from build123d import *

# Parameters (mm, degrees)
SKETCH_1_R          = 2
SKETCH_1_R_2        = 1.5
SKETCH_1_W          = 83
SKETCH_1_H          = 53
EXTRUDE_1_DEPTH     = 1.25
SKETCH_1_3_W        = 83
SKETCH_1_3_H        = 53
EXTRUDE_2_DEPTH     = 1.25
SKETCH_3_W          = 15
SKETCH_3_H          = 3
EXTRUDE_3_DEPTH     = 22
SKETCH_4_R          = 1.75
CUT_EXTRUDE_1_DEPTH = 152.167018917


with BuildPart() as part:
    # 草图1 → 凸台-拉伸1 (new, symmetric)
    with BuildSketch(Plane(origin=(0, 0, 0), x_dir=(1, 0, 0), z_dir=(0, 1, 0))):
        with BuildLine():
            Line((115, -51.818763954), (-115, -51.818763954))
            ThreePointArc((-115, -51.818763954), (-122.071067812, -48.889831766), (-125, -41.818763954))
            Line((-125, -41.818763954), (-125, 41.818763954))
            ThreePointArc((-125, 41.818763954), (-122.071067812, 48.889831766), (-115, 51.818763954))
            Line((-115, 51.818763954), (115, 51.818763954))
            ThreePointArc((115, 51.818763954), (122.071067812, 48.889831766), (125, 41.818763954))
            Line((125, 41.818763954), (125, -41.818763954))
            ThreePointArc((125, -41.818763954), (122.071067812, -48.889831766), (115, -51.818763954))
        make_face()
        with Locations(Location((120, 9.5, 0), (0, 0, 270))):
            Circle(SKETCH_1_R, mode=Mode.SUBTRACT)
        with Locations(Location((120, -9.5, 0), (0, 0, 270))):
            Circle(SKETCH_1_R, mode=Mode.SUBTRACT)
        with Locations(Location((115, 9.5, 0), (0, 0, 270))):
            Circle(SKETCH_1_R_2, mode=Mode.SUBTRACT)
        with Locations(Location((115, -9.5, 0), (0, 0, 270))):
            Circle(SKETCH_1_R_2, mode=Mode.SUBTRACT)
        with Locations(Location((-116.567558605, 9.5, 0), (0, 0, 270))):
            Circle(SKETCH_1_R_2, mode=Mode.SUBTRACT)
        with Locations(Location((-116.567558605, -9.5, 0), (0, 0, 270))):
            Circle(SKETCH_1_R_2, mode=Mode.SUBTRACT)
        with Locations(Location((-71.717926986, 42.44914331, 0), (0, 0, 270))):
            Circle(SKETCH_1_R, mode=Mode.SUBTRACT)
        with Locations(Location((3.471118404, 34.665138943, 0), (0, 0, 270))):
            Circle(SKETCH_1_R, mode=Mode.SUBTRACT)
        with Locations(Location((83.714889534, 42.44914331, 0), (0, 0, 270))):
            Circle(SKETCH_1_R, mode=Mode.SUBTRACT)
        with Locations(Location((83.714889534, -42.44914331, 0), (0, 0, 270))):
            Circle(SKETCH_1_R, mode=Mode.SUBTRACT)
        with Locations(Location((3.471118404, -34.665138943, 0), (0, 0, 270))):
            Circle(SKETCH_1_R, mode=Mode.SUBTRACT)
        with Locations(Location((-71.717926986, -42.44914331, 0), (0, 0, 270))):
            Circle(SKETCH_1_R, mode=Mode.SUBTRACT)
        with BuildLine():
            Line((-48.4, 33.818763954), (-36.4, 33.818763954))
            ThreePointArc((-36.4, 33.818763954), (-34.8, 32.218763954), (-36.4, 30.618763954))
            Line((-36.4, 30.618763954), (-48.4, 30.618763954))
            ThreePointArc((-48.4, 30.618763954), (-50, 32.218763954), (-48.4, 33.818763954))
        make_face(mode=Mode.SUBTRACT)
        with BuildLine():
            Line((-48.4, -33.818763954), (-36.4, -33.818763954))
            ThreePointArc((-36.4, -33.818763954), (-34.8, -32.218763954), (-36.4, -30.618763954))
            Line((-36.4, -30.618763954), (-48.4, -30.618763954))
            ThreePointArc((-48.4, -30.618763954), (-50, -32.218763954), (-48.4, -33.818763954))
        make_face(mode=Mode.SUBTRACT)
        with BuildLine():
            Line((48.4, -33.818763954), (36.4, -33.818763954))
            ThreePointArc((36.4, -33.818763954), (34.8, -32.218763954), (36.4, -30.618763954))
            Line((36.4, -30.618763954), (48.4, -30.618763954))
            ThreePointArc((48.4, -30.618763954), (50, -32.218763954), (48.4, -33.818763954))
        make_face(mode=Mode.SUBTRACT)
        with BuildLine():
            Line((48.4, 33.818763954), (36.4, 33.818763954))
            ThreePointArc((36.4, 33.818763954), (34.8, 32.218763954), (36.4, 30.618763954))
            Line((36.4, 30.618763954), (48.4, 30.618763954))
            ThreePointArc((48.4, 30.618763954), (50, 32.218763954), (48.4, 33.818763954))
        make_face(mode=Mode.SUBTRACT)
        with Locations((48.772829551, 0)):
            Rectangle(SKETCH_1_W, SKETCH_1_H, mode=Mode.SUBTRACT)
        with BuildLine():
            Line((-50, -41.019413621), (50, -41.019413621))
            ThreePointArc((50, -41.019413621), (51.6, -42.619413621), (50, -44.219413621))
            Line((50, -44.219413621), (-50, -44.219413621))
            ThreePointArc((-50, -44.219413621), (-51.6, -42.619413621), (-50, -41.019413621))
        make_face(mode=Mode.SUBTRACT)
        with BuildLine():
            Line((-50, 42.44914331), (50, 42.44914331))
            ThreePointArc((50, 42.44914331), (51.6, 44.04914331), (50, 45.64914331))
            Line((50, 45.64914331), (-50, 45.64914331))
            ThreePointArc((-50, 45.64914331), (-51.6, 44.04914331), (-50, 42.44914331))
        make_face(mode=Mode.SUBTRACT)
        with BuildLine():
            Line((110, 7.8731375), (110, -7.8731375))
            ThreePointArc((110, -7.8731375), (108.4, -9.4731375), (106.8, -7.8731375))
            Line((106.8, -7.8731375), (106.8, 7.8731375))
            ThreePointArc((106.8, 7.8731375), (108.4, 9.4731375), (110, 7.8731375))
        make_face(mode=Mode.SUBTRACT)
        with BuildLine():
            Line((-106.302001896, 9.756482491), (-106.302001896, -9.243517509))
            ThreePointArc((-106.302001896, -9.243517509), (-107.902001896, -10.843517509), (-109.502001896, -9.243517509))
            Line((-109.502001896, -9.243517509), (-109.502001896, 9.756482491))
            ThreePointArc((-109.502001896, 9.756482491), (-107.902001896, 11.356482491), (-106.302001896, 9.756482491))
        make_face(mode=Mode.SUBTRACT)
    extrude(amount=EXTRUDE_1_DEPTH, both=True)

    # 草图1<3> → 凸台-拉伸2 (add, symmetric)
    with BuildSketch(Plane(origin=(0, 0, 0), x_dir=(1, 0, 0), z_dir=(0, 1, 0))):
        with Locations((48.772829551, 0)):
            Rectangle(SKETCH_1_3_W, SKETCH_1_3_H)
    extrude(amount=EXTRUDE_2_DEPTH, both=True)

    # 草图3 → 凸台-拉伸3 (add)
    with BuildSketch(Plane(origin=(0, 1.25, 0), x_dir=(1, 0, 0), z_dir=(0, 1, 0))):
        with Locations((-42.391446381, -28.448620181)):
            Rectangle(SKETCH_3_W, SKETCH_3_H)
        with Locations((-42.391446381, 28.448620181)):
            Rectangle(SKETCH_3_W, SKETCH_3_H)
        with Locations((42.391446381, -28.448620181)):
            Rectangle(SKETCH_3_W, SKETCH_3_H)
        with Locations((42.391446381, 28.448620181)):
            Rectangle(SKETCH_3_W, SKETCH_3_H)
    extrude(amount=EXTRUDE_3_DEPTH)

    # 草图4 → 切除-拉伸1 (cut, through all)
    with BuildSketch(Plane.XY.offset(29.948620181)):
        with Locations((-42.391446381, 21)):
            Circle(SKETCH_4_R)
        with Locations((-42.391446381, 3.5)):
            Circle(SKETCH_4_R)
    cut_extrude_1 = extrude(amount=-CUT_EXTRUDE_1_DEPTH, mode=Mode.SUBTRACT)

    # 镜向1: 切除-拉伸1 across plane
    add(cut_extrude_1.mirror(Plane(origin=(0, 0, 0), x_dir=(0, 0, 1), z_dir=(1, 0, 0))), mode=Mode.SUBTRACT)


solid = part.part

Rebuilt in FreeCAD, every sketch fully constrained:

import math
import FreeCAD as App
import Part
import Sketcher

V = App.Vector


def add_polygon(sketch, points):
    """Adds a closed chain of lines whose ends are joined by coincident constraints."""
    first, n = sketch.GeometryCount, len(points)
    for a, b in zip(points, points[1:] + points[:1]):
        sketch.addGeometry(Part.LineSegment(App.Vector(*a, 0), App.Vector(*b, 0)), False)
    for i in range(n):
        sketch.addConstraint(Sketcher.Constraint("Coincident", first + i, 2, first + (i + 1) % n, 1))

doc = App.newDocument("Part")
params = doc.addObject("Spreadsheet::Sheet", "Params")
for row, (alias, value) in enumerate([
    ("sketch1_diameter", "4 mm"),
    ("sketch1_diameter2", "3 mm"),
    ("sketch1_radius", "10 mm"),
    ("sketch1_radius2", "1.6 mm"),
    ("sketch1_width", "230 mm"),
    ("pad1_length", "2.5 mm"),
    ("sketch2_width", "83 mm"),
    ("sketch2_height", "53 mm"),
    ("pad2_length", "2.5 mm"),
    ("sketch3_width", "15 mm"),
    ("sketch3_height", "3 mm"),
    ("pad3_length", "22 mm"),
    ("sketch4_diameter", "3.5 mm"),
], start=1):
    params.set(f"A{row}", alias)
    params.set(f"B{row}", "=" + value)
    params.setAlias(f"B{row}", alias)

body = doc.addObject("PartDesign::Body", "Body")

# Sketch on XZ plane
sketch1 = body.newObject("Sketcher::SketchObject", "Sketch")
sketch1.AttachmentSupport = (doc.getObject("XZ_Plane"), [""])
sketch1.MapMode = "FlatFace"
sketch1.addGeometry(Part.LineSegment(V(-115, 51.818764, 0), V(115, 51.818764, 0)), False)  # 0
sketch1.addGeometry(Part.ArcOfCircle(Part.Circle(V(115, 41.818764, 0), V(0, 0, 1), 10), math.radians(0), math.radians(90)), False)  # 1
sketch1.addGeometry(Part.LineSegment(V(125, 41.818764, 0), V(125, -41.818764, 0)), False)  # 2
sketch1.addGeometry(Part.ArcOfCircle(Part.Circle(V(115, -41.818764, 0), V(0, 0, 1), 10), math.radians(-90), math.radians(0)), False)  # 3
sketch1.addGeometry(Part.LineSegment(V(115, -51.818764, 0), V(-115, -51.818764, 0)), False)  # 4
sketch1.addGeometry(Part.ArcOfCircle(Part.Circle(V(-115, -41.818764, 0), V(0, 0, 1), 10), math.radians(180), math.radians(270)), False)  # 5
sketch1.addGeometry(Part.LineSegment(V(-125, -41.818764, 0), V(-125, 41.818764, 0)), False)  # 6
sketch1.addGeometry(Part.ArcOfCircle(Part.Circle(V(-115, 41.818764, 0), V(0, 0, 1), 10), math.radians(90), math.radians(180)), False)  # 7
sketch1.addGeometry(Part.Circle(V(83.71489, 42.449143, 0), V(0, 0, 1), 2), False)  # 8
sketch1.addGeometry(Part.Circle(V(3.471118, 34.665139, 0), V(0, 0, 1), 2), False)  # 9
sketch1.addGeometry(Part.LineSegment(V(48.4, 33.818764, 0), V(36.4, 33.818764, 0)), False)  # 10
sketch1.addGeometry(Part.ArcOfCircle(Part.Circle(V(36.4, 32.218764, 0), V(0, 0, 1), 1.6), math.radians(90), math.radians(270)), False)  # 11
sketch1.addGeometry(Part.LineSegment(V(36.4, 30.618764, 0), V(48.4, 30.618764, 0)), False)  # 12
sketch1.addGeometry(Part.ArcOfCircle(Part.Circle(V(48.4, 32.218764, 0), V(0, 0, 1), 1.6), math.radians(-90), math.radians(90)), False)  # 13
sketch1.addGeometry(Part.Circle(V(120, 9.5, 0), V(0, 0, 1), 2), False)  # 14
sketch1.addGeometry(Part.Circle(V(115, 9.5, 0), V(0, 0, 1), 1.5), False)  # 15
sketch1.addGeometry(Part.LineSegment(V(110, -7.873138, 0), V(110, 7.873138, 0)), False)  # 16
sketch1.addGeometry(Part.ArcOfCircle(Part.Circle(V(108.4, 7.873138, 0), V(0, 0, 1), 1.6), math.radians(0), math.radians(180)), False)  # 17
sketch1.addGeometry(Part.LineSegment(V(106.8, 7.873138, 0), V(106.8, -7.873138, 0)), False)  # 18
sketch1.addGeometry(Part.ArcOfCircle(Part.Circle(V(108.4, -7.873138, 0), V(0, 0, 1), 1.6), math.radians(180), math.radians(360)), False)  # 19
add_polygon(sketch1, [(7.27283, 26.5), (7.27283, -26.5), (90.27283, -26.5), (90.27283, 26.5)])  # lines 20-23
sketch1.addGeometry(Part.LineSegment(V(-50, 41.019414, 0), V(50, 41.019414, 0)), False)  # 24
sketch1.addGeometry(Part.ArcOfCircle(Part.Circle(V(50, 42.619414, 0), V(0, 0, 1), 1.6), math.radians(-90), math.radians(90)), False)  # 25
sketch1.addGeometry(Part.LineSegment(V(50, 44.219414, 0), V(-50, 44.219414, 0)), False)  # 26
sketch1.addGeometry(Part.ArcOfCircle(Part.Circle(V(-50, 42.619414, 0), V(0, 0, 1), 1.6), math.radians(90), math.radians(270)), False)  # 27
sketch1.addGeometry(Part.ArcOfCircle(Part.Circle(V(-48.4, 32.218764, 0), V(0, 0, 1), 1.6), math.radians(90), math.radians(270)), False)  # 28
sketch1.addGeometry(Part.LineSegment(V(-48.4, 30.618764, 0), V(-36.4, 30.618764, 0)), False)  # 29
sketch1.addGeometry(Part.ArcOfCircle(Part.Circle(V(-36.4, 32.218764, 0), V(0, 0, 1), 1.6), math.radians(-90), math.radians(90)), False)  # 30
sketch1.addGeometry(Part.LineSegment(V(-36.4, 33.818764, 0), V(-48.4, 33.818764, 0)), False)  # 31
sketch1.addGeometry(Part.Circle(V(-71.717927, 42.449143, 0), V(0, 0, 1), 2), False)  # 32
sketch1.addGeometry(Part.Circle(V(-116.567559, 9.5, 0), V(0, 0, 1), 1.5), False)  # 33
sketch1.addGeometry(Part.LineSegment(V(-106.302002, -9.756482, 0), V(-106.302002, 9.243518, 0)), False)  # 34
sketch1.addGeometry(Part.ArcOfCircle(Part.Circle(V(-107.902002, 9.243518, 0), V(0, 0, 1), 1.6), math.radians(0), math.radians(180)), False)  # 35
sketch1.addGeometry(Part.LineSegment(V(-109.502002, 9.243518, 0), V(-109.502002, -9.756482, 0)), False)  # 36
sketch1.addGeometry(Part.ArcOfCircle(Part.Circle(V(-107.902002, -9.756482, 0), V(0, 0, 1), 1.6), math.radians(180), math.radians(360)), False)  # 37
sketch1.addGeometry(Part.Circle(V(120, -9.5, 0), V(0, 0, 1), 2), False)  # 38
sketch1.addGeometry(Part.Circle(V(115, -9.5, 0), V(0, 0, 1), 1.5), False)  # 39
sketch1.addGeometry(Part.Circle(V(83.71489, -42.449143, 0), V(0, 0, 1), 2), False)  # 40
sketch1.addGeometry(Part.ArcOfCircle(Part.Circle(V(48.4, -32.218764, 0), V(0, 0, 1), 1.6), math.radians(-90), math.radians(90)), False)  # 41
sketch1.addGeometry(Part.LineSegment(V(48.4, -30.618764, 0), V(36.4, -30.618764, 0)), False)  # 42
sketch1.addGeometry(Part.ArcOfCircle(Part.Circle(V(36.4, -32.218764, 0), V(0, 0, 1), 1.6), math.radians(90), math.radians(270)), False)  # 43
sketch1.addGeometry(Part.LineSegment(V(36.4, -33.818764, 0), V(48.4, -33.818764, 0)), False)  # 44
sketch1.addGeometry(Part.Circle(V(3.471118, -34.665139, 0), V(0, 0, 1), 2), False)  # 45
sketch1.addGeometry(Part.Circle(V(-116.567559, -9.5, 0), V(0, 0, 1), 1.5), False)  # 46
sketch1.addGeometry(Part.LineSegment(V(-48.4, -33.818764, 0), V(-36.4, -33.818764, 0)), False)  # 47
sketch1.addGeometry(Part.ArcOfCircle(Part.Circle(V(-36.4, -32.218764, 0), V(0, 0, 1), 1.6), math.radians(-90), math.radians(90)), False)  # 48
sketch1.addGeometry(Part.LineSegment(V(-36.4, -30.618764, 0), V(-48.4, -30.618764, 0)), False)  # 49
sketch1.addGeometry(Part.ArcOfCircle(Part.Circle(V(-48.4, -32.218764, 0), V(0, 0, 1), 1.6), math.radians(90), math.radians(270)), False)  # 50
sketch1.addGeometry(Part.ArcOfCircle(Part.Circle(V(-50, -44.049143, 0), V(0, 0, 1), 1.6), math.radians(90), math.radians(270)), False)  # 51
sketch1.addGeometry(Part.LineSegment(V(-50, -45.649143, 0), V(50, -45.649143, 0)), False)  # 52
sketch1.addGeometry(Part.ArcOfCircle(Part.Circle(V(50, -44.049143, 0), V(0, 0, 1), 1.6), math.radians(-90), math.radians(90)), False)  # 53
sketch1.addGeometry(Part.LineSegment(V(50, -42.449143, 0), V(-50, -42.449143, 0)), False)  # 54
sketch1.addGeometry(Part.Circle(V(-71.717927, -42.449143, 0), V(0, 0, 1), 2), False)  # 55
sketch1.addConstraint([
    Sketcher.Constraint("Tangent", 0, 2, 1, 2),
    Sketcher.Constraint("Tangent", 1, 1, 2, 1),
    Sketcher.Constraint("Tangent", 2, 2, 3, 2),
    Sketcher.Constraint("Tangent", 3, 1, 4, 1),
    Sketcher.Constraint("Tangent", 4, 2, 5, 2),
    Sketcher.Constraint("Tangent", 5, 1, 6, 1),
    Sketcher.Constraint("Tangent", 6, 2, 7, 2),
    Sketcher.Constraint("Tangent", 7, 1, 0, 1),
    Sketcher.Constraint("Tangent", 10, 2, 11, 1),
    Sketcher.Constraint("Tangent", 11, 2, 12, 1),
    Sketcher.Constraint("Tangent", 12, 2, 13, 1),
    Sketcher.Constraint("Tangent", 13, 2, 10, 1),
    Sketcher.Constraint("Tangent", 16, 2, 17, 1),
    Sketcher.Constraint("Tangent", 17, 2, 18, 1),
    Sketcher.Constraint("Tangent", 18, 2, 19, 1),
    Sketcher.Constraint("Tangent", 19, 2, 16, 1),
    Sketcher.Constraint("Tangent", 24, 2, 25, 1),
    Sketcher.Constraint("Tangent", 25, 2, 26, 1),
    Sketcher.Constraint("Tangent", 26, 2, 27, 1),
    Sketcher.Constraint("Tangent", 27, 2, 24, 1),
    Sketcher.Constraint("Tangent", 28, 2, 29, 1),
    Sketcher.Constraint("Tangent", 29, 2, 30, 1),
    Sketcher.Constraint("Tangent", 30, 2, 31, 1),
    Sketcher.Constraint("Tangent", 31, 2, 28, 1),
    Sketcher.Constraint("Tangent", 34, 2, 35, 1),
    Sketcher.Constraint("Tangent", 35, 2, 36, 1),
    Sketcher.Constraint("Tangent", 36, 2, 37, 1),
    Sketcher.Constraint("Tangent", 37, 2, 34, 1),
    Sketcher.Constraint("Tangent", 41, 2, 42, 1),
    Sketcher.Constraint("Tangent", 42, 2, 43, 1),
    Sketcher.Constraint("Tangent", 43, 2, 44, 1),
    Sketcher.Constraint("Tangent", 44, 2, 41, 1),
    Sketcher.Constraint("Tangent", 47, 2, 48, 1),
    Sketcher.Constraint("Tangent", 48, 2, 49, 1),
    Sketcher.Constraint("Tangent", 49, 2, 50, 1),
    Sketcher.Constraint("Tangent", 50, 2, 47, 1),
    Sketcher.Constraint("Tangent", 51, 2, 52, 1),
    Sketcher.Constraint("Tangent", 52, 2, 53, 1),
    Sketcher.Constraint("Tangent", 53, 2, 54, 1),
    Sketcher.Constraint("Tangent", 54, 2, 51, 1),
    Sketcher.Constraint("Horizontal", 0),
    Sketcher.Constraint("Vertical", 2),
    Sketcher.Constraint("Horizontal", 4),
    Sketcher.Constraint("Vertical", 6),
    Sketcher.Constraint("Horizontal", 10),
    Sketcher.Constraint("Horizontal", 12),
    Sketcher.Constraint("Vertical", 16),
    Sketcher.Constraint("Vertical", 18),
    Sketcher.Constraint("Vertical", 20),
    Sketcher.Constraint("Horizontal", 21),
    Sketcher.Constraint("Vertical", 22),
    Sketcher.Constraint("Horizontal", 23),
    Sketcher.Constraint("Horizontal", 24),
    Sketcher.Constraint("Horizontal", 26),
    Sketcher.Constraint("Horizontal", 29),
    Sketcher.Constraint("Horizontal", 31),
    Sketcher.Constraint("Vertical", 34),
    Sketcher.Constraint("Vertical", 36),
    Sketcher.Constraint("Horizontal", 42),
    Sketcher.Constraint("Horizontal", 44),
    Sketcher.Constraint("Horizontal", 47),
    Sketcher.Constraint("Horizontal", 49),
    Sketcher.Constraint("Horizontal", 52),
    Sketcher.Constraint("Horizontal", 54),
    Sketcher.Constraint("Equal", 1, 3),
    Sketcher.Constraint("Equal", 3, 5),
    Sketcher.Constraint("Equal", 5, 7),
    Sketcher.Constraint("Equal", 8, 9),
    Sketcher.Constraint("Equal", 9, 14),
    Sketcher.Constraint("Equal", 13, 17),
    Sketcher.Constraint("Equal", 19, 25),
    Sketcher.Constraint("Equal", 27, 28),
    Sketcher.Constraint("Equal", 14, 32),
    Sketcher.Constraint("Equal", 15, 33),
    Sketcher.Constraint("Equal", 30, 35),
    Sketcher.Constraint("Equal", 32, 38),
    Sketcher.Constraint("Equal", 33, 39),
    Sketcher.Constraint("Equal", 38, 40),
    Sketcher.Constraint("Equal", 37, 41),
    Sketcher.Constraint("Equal", 40, 45),
    Sketcher.Constraint("Equal", 39, 46),
    Sketcher.Constraint("Equal", 43, 48),
    Sketcher.Constraint("Equal", 50, 51),
    Sketcher.Constraint("Equal", 45, 55),
    Sketcher.Constraint("Symmetric", 1, 3, 5, 3, -1, 1),
    Sketcher.Constraint("Symmetric", 28, 3, 41, 3, -1, 1),
    Sketcher.Constraint("Symmetric", 11, 3, 48, 3, -1, 1),
    Sketcher.Constraint("Symmetric", 13, 3, 28, 3, -2),
    Sketcher.Constraint("Symmetric", 14, 3, 38, 3, -1),
    Sketcher.Constraint("Symmetric", 15, 3, 39, 3, -1),
    Sketcher.Constraint("Symmetric", 8, 3, 40, 3, -1),
    Sketcher.Constraint("Symmetric", 9, 3, 45, 3, -1),
    Sketcher.Constraint("Symmetric", 33, 3, 46, 3, -1),
    Sketcher.Constraint("Symmetric", 32, 3, 55, 3, -1),
    Sketcher.Constraint("Horizontal", 14, 3, 15, 3),
    Sketcher.Constraint("Horizontal", 8, 3, 32, 3),
    Sketcher.Constraint("Horizontal", 15, 3, 33, 3),
    Sketcher.Constraint("Horizontal", 55, 3, 53, 2),
    Sketcher.Constraint("Vertical", 3, 3, 15, 3),
    Sketcher.Constraint("Vertical", 11, 3, 43, 3),
    Sketcher.Constraint("Vertical", 30, 3, 48, 3),
    Sketcher.Constraint("Vertical", 28, 3, 50, 3),
    Sketcher.Constraint("Vertical", 27, 3, 51, 3),
    Sketcher.Constraint("Vertical", 25, 3, 53, 3),
    Sketcher.Constraint("Diameter", 8, 4.0),
    Sketcher.Constraint("Diameter", 15, 3.0),
    Sketcher.Constraint("Radius", 1, 10.0),
    Sketcher.Constraint("Radius", 11, 1.6),
    Sketcher.Constraint("DistanceX", 0, 1, 0, 2, 230.0),
    Sketcher.Constraint("DistanceX", 10, 2, 10, 1, 12.0),
    Sketcher.Constraint("DistanceX", 21, 1, 21, 2, 83.0),
    Sketcher.Constraint("DistanceX", 24, 1, 24, 2, 100.0),
    Sketcher.Constraint("DistanceY", 20, 2, 20, 1, 53.0),
    Sketcher.Constraint("DistanceY", 34, 1, 34, 2, 19.0),
    Sketcher.Constraint("DistanceX", -1, 1, 14, 3, 120.0),
    Sketcher.Constraint("DistanceX", -1, 1, 25, 3, 50.0),
    Sketcher.Constraint("DistanceX", -1, 1, 16, 2, 110.0),
    Sketcher.Constraint("DistanceX", -1, 1, 11, 3, 36.4),
    Sketcher.Constraint("DistanceY", -1, 1, 14, 3, 9.5),
    Sketcher.Constraint("DistanceY", 20, 2, -1, 1, 26.5),
    Sketcher.Constraint("DistanceX", 35, 3, -1, 1, 107.902002),
    Sketcher.Constraint("DistanceY", 2, 2, 2, 1, 83.637528),
    Sketcher.Constraint("DistanceY", 16, 1, 16, 2, 15.746275),
    Sketcher.Constraint("DistanceX", -1, 1, 8, 3, 83.71489),
    Sketcher.Constraint("DistanceX", -1, 1, 9, 3, 3.471118),
    Sketcher.Constraint("DistanceY", -1, 1, 9, 3, 34.665139),
    Sketcher.Constraint("DistanceX", 33, 3, -1, 1, 116.567559),
    Sketcher.Constraint("DistanceX", -1, 1, 20, 2, 7.27283),
    Sketcher.Constraint("DistanceY", -1, 1, 8, 3, 42.449143),
    Sketcher.Constraint("DistanceY", -1, 1, 11, 3, 32.218764),
    Sketcher.Constraint("DistanceY", -1, 1, 17, 3, 7.873138),
    Sketcher.Constraint("DistanceY", -1, 1, 25, 3, 42.619414),
    Sketcher.Constraint("DistanceX", 32, 3, -1, 1, 71.717927),
    Sketcher.Constraint("DistanceY", -1, 1, 35, 3, 9.243518),
])
sketch1.setExpression("Constraints[108]", "Params.sketch1_diameter")
sketch1.setExpression("Constraints[109]", "Params.sketch1_diameter2")
sketch1.setExpression("Constraints[110]", "Params.sketch1_radius")
sketch1.setExpression("Constraints[111]", "Params.sketch1_radius2")
sketch1.setExpression("Constraints[112]", "Params.sketch1_width")
pad1 = body.newObject("PartDesign::Pad", "Pad")
pad1.Profile = sketch1
pad1.setExpression("Length", "Params.pad1_length")
pad1.Midplane = True

# Sketch on XZ plane
sketch2 = body.newObject("Sketcher::SketchObject", "Sketch001")
sketch2.AttachmentSupport = (doc.getObject("XZ_Plane"), [""])
sketch2.MapMode = "FlatFace"
add_polygon(sketch2, [(7.27283, -26.5), (7.27283, 26.5), (90.27283, 26.5), (90.27283, -26.5)])  # lines 0-3
sketch2.addConstraint([
    Sketcher.Constraint("Vertical", 0),
    Sketcher.Constraint("Horizontal", 1),
    Sketcher.Constraint("Vertical", 2),
    Sketcher.Constraint("Horizontal", 3),
    Sketcher.Constraint("DistanceX", 1, 1, 1, 2, 83.0),
    Sketcher.Constraint("DistanceY", 0, 1, 0, 2, 53.0),
    Sketcher.Constraint("DistanceY", -1, 1, 0, 2, 26.5),
    Sketcher.Constraint("DistanceX", -1, 1, 0, 2, 7.27283),
])
sketch2.setExpression("Constraints[8]", "Params.sketch2_width")
sketch2.setExpression("Constraints[9]", "Params.sketch2_height")
pad2 = body.newObject("PartDesign::Pad", "Pad001")
pad2.Profile = sketch2
pad2.setExpression("Length", "Params.pad2_length")
pad2.Midplane = True

# Sketch on XZ plane
sketch3 = body.newObject("Sketcher::SketchObject", "Sketch002")
sketch3.AttachmentSupport = (doc.getObject("XZ_Plane"), [""])
sketch3.MapMode = "FlatFace"
sketch3.AttachmentOffset = App.Placement(V(0, 0, -1.25), App.Rotation())
add_polygon(sketch3, [(-49.891446, 26.94862), (-49.891446, 29.94862), (-34.891446, 29.94862), (-34.891446, 26.94862)])  # lines 0-3
add_polygon(sketch3, [(-49.891446, -29.94862), (-49.891446, -26.94862), (-34.891446, -26.94862), (-34.891446, -29.94862)])  # lines 4-7
add_polygon(sketch3, [(34.891446, 26.94862), (34.891446, 29.94862), (49.891446, 29.94862), (49.891446, 26.94862)])  # lines 8-11
add_polygon(sketch3, [(34.891446, -29.94862), (34.891446, -26.94862), (49.891446, -26.94862), (49.891446, -29.94862)])  # lines 12-15
sketch3.addConstraint([
    Sketcher.Constraint("Vertical", 0),
    Sketcher.Constraint("Horizontal", 1),
    Sketcher.Constraint("Vertical", 2),
    Sketcher.Constraint("Horizontal", 3),
    Sketcher.Constraint("Vertical", 4),
    Sketcher.Constraint("Horizontal", 5),
    Sketcher.Constraint("Vertical", 6),
    Sketcher.Constraint("Horizontal", 7),
    Sketcher.Constraint("Vertical", 8),
    Sketcher.Constraint("Horizontal", 9),
    Sketcher.Constraint("Vertical", 10),
    Sketcher.Constraint("Horizontal", 11),
    Sketcher.Constraint("Vertical", 12),
    Sketcher.Constraint("Horizontal", 13),
    Sketcher.Constraint("Vertical", 14),
    Sketcher.Constraint("Horizontal", 15),
    Sketcher.Constraint("Symmetric", 6, 2, 8, 2, -1, 1),
    Sketcher.Constraint("Symmetric", 4, 2, 10, 2, -1, 1),
    Sketcher.Constraint("Symmetric", 2, 2, 12, 2, -1, 1),
    Sketcher.Constraint("Symmetric", 0, 2, 14, 2, -1, 1),
    Sketcher.Constraint("Symmetric", 1, 2, 8, 2, -2),
    Sketcher.Constraint("Symmetric", 3, 2, 10, 2, -2),
    Sketcher.Constraint("DistanceX", 1, 1, 1, 2, 15.0),
    Sketcher.Constraint("DistanceY", 0, 1, 0, 2, 3.0),
    Sketcher.Constraint("DistanceY", -1, 1, 0, 2, 29.94862),
    Sketcher.Constraint("DistanceX", 0, 2, -1, 1, 49.891446),
])
sketch3.setExpression("Constraints[38]", "Params.sketch3_width")
sketch3.setExpression("Constraints[39]", "Params.sketch3_height")
pad3 = body.newObject("PartDesign::Pad", "Pad002")
pad3.Profile = sketch3
pad3.setExpression("Length", "Params.pad3_length")
pad3.Reversed = True

# Sketch on XY plane
sketch4 = body.newObject("Sketcher::SketchObject", "Sketch003")
sketch4.AttachmentSupport = (doc.getObject("XY_Plane"), [""])
sketch4.MapMode = "FlatFace"
sketch4.AttachmentOffset = App.Placement(V(0, 0, 29.94862), App.Rotation())
sketch4.addGeometry([
    Part.Circle(V(-42.391446, 21, 0), V(0, 0, 1), 1.75),
    Part.Circle(V(-42.391446, 3.5, 0), V(0, 0, 1), 1.75),
], False)
sketch4.addConstraint([
    Sketcher.Constraint("Equal", 0, 1),
    Sketcher.Constraint("Vertical", 0, 3, 1, 3),
    Sketcher.Constraint("Diameter", 0, 3.5),
    Sketcher.Constraint("DistanceY", -1, 1, 0, 3, 21.0),
    Sketcher.Constraint("DistanceY", -1, 1, 1, 3, 3.5),
    Sketcher.Constraint("DistanceX", 0, 3, -1, 1, 42.391446),
])
sketch4.setExpression("Constraints[2]", "Params.sketch4_diameter")
pocket1 = body.newObject("PartDesign::Pocket", "Pocket")
pocket1.Profile = sketch4
pocket1.Type = "ThroughAll"
doc.recompute()

mirrored = body.newObject("PartDesign::Mirrored", "Mirrored")
mirrored.Originals = [pocket1]
mirrored.MirrorPlane = (doc.getObject("YZ_Plane"), [""])
body.Tip = mirrored

doc.recompute()
